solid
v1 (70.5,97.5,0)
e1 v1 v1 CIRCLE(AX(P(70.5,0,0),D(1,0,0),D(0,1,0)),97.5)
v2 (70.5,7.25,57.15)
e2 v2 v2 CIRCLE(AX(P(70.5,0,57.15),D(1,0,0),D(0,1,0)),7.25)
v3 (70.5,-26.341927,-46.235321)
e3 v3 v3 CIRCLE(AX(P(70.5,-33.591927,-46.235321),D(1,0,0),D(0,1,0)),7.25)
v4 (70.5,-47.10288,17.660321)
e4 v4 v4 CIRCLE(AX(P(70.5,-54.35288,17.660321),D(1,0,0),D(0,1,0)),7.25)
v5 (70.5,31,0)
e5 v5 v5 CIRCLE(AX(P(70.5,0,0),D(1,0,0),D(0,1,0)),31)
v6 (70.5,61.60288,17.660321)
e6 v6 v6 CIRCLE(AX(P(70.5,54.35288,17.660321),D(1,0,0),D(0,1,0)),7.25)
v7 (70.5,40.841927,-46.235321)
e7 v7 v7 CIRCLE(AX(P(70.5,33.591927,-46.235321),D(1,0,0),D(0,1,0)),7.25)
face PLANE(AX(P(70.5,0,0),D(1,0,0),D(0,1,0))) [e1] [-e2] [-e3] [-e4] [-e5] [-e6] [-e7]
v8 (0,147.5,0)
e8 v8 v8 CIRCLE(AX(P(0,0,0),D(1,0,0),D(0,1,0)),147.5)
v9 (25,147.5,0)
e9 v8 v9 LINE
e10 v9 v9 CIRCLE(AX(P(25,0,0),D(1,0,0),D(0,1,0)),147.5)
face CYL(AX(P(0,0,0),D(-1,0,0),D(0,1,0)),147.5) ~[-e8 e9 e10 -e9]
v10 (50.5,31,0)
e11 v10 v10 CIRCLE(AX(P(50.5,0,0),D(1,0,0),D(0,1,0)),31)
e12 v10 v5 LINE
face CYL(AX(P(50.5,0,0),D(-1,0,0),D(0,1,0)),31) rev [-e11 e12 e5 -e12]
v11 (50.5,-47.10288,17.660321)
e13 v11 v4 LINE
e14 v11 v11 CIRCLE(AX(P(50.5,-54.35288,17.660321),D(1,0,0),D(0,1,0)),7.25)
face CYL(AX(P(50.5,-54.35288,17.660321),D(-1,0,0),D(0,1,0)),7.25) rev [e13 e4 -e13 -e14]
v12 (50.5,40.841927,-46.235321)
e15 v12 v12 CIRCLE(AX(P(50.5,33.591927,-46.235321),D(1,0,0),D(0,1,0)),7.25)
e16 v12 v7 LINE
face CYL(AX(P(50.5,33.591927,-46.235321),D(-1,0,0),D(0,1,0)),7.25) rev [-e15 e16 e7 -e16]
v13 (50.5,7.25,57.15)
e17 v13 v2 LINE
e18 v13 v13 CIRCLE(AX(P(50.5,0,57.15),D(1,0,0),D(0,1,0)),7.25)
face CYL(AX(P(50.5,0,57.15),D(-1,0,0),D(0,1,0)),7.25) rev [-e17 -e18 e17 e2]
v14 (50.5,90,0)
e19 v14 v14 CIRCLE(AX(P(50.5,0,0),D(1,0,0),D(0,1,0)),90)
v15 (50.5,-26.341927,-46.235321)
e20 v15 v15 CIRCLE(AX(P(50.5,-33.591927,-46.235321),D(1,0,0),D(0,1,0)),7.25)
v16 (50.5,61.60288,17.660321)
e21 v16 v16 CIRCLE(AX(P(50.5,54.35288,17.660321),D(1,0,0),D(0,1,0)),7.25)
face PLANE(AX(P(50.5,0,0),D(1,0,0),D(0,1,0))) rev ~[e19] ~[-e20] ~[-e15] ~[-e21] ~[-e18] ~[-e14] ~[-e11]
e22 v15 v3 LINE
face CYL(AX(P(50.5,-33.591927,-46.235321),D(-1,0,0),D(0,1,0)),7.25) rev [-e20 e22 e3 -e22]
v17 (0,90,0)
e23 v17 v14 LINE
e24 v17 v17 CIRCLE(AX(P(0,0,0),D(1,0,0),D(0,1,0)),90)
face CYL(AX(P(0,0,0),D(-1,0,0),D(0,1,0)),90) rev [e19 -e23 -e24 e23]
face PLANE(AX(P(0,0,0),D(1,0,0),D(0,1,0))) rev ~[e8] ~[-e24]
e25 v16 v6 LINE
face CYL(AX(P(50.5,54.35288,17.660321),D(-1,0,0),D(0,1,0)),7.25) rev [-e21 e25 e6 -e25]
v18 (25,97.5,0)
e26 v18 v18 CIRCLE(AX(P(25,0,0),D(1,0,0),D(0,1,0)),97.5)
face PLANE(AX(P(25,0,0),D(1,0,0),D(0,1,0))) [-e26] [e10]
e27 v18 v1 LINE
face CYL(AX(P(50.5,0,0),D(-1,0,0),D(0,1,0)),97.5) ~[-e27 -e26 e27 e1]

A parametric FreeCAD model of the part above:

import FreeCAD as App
import Part
import Sketcher
from FreeCAD import Vector
Q = App.Units.Quantity

doc = App.newDocument("Part")
body = doc.addObject("PartDesign::Body", "Body")

sketch1 = body.newObject("Sketcher::SketchObject", "Sketch")
sketch1.AttachmentSupport = (doc.getObject("YZ_Plane"), [""])
sketch1.MapMode = "FlatFace"
sketch1.addGeometry([
    Part.Circle(Vector(0, 0, 0), Vector(0, 0, 1), 148),
    Part.Circle(Vector(0, 0, 0), Vector(0, 0, 1), 98),
], False)
sketch1.addConstraint([
    Sketcher.Constraint("Coincident", 0, 3, -1, 1),
    Sketcher.Constraint("Coincident", 1, 3, -1, 1),
    Sketcher.Constraint("Diameter", 0, Q("295 mm")),
    Sketcher.Constraint("Diameter", 1, Q("195 mm")),
])
pad1 = body.newObject("PartDesign::Pad", "Pad")
pad1.Profile = sketch1
pad1.Length = 25

sketch2 = body.newObject("Sketcher::SketchObject", "Sketch001")
sketch2.AttachmentSupport = (doc.getObject("YZ_Plane"), [""])
sketch2.MapMode = "FlatFace"
sketch2.addGeometry([
    Part.Circle(Vector(0, 0, 0), Vector(0, 0, 1), 98),
    Part.Circle(Vector(0, 0, 0), Vector(0, 0, 1), 90),
], False)
sketch2.addConstraint([
    Sketcher.Constraint("Coincident", 0, 3, -1, 1),
    Sketcher.Constraint("Coincident", 1, 3, -1, 1),
    Sketcher.Constraint("Diameter", 0, Q("195 mm")),
    Sketcher.Constraint("Diameter", 1, Q("180 mm")),
])
pad2 = body.newObject("PartDesign::Pad", "Pad001")
pad2.Profile = sketch2
pad2.Length = 50.5

sketch3 = body.newObject("Sketcher::SketchObject", "Sketch002")
sketch3.AttachmentSupport = (doc.getObject("YZ_Plane"), [""])
sketch3.MapMode = "FlatFace"
sketch3.AttachmentOffset = App.Placement(Vector(0, 0, 50.5), App.Rotation())
sketch3.addGeometry([
    Part.Circle(Vector(0, 0, 0), Vector(0, 0, 1), 98),
    Part.Circle(Vector(-34, -46, 0), Vector(0, 0, 1), 7),
    Part.Circle(Vector(34, -46, 0), Vector(0, 0, 1), 7),
    Part.Circle(Vector(0, 0, 0), Vector(0, 0, 1), 31),
    Part.Circle(Vector(-54, 18, 0), Vector(0, 0, 1), 7),
    Part.Circle(Vector(54, 18, 0), Vector(0, 0, 1), 7),
    Part.Circle(Vector(0, 57, 0), Vector(0, 0, 1), 7),
], False)
sketch3.addConstraint([
    Sketcher.Constraint("Coincident", 0, 3, -1, 1),
    Sketcher.Constraint("Coincident", 3, 3, -1, 1),
    Sketcher.Constraint("Equal", 1, 2),
    Sketcher.Constraint("Equal", 2, 4),
    Sketcher.Constraint("Equal", 4, 5),
    Sketcher.Constraint("Equal", 5, 6),
    Sketcher.Constraint("Symmetric", 1, 3, 2, 3, -2),
    Sketcher.Constraint("Symmetric", 4, 3, 5, 3, -2),
    Sketcher.Constraint("PointOnObject", 6, 3, -2),
    Sketcher.Constraint("Diameter", 0, Q("195 mm")),
    Sketcher.Constraint("Diameter", 3, Q("62 mm")),
    Sketcher.Constraint("Diameter", 1, Q("14.5 mm")),
    Sketcher.Constraint("DistanceY", -1, 1, 6, 3, Q("57.15 mm")),
    Sketcher.Constraint("DistanceY", 1, 3, -1, 1, Q("46.235321 mm")),
    Sketcher.Constraint("DistanceX", 4, 3, -1, 1, Q("54.35288 mm")),
    Sketcher.Constraint("DistanceY", -1, 1, 4, 3, Q("17.660321 mm")),
    Sketcher.Constraint("DistanceX", 1, 3, -1, 1, Q("33.591927 mm")),
])
pad3 = body.newObject("PartDesign::Pad", "Pad002")
pad3.Profile = sketch3
pad3.Length = 20

doc.recompute()
